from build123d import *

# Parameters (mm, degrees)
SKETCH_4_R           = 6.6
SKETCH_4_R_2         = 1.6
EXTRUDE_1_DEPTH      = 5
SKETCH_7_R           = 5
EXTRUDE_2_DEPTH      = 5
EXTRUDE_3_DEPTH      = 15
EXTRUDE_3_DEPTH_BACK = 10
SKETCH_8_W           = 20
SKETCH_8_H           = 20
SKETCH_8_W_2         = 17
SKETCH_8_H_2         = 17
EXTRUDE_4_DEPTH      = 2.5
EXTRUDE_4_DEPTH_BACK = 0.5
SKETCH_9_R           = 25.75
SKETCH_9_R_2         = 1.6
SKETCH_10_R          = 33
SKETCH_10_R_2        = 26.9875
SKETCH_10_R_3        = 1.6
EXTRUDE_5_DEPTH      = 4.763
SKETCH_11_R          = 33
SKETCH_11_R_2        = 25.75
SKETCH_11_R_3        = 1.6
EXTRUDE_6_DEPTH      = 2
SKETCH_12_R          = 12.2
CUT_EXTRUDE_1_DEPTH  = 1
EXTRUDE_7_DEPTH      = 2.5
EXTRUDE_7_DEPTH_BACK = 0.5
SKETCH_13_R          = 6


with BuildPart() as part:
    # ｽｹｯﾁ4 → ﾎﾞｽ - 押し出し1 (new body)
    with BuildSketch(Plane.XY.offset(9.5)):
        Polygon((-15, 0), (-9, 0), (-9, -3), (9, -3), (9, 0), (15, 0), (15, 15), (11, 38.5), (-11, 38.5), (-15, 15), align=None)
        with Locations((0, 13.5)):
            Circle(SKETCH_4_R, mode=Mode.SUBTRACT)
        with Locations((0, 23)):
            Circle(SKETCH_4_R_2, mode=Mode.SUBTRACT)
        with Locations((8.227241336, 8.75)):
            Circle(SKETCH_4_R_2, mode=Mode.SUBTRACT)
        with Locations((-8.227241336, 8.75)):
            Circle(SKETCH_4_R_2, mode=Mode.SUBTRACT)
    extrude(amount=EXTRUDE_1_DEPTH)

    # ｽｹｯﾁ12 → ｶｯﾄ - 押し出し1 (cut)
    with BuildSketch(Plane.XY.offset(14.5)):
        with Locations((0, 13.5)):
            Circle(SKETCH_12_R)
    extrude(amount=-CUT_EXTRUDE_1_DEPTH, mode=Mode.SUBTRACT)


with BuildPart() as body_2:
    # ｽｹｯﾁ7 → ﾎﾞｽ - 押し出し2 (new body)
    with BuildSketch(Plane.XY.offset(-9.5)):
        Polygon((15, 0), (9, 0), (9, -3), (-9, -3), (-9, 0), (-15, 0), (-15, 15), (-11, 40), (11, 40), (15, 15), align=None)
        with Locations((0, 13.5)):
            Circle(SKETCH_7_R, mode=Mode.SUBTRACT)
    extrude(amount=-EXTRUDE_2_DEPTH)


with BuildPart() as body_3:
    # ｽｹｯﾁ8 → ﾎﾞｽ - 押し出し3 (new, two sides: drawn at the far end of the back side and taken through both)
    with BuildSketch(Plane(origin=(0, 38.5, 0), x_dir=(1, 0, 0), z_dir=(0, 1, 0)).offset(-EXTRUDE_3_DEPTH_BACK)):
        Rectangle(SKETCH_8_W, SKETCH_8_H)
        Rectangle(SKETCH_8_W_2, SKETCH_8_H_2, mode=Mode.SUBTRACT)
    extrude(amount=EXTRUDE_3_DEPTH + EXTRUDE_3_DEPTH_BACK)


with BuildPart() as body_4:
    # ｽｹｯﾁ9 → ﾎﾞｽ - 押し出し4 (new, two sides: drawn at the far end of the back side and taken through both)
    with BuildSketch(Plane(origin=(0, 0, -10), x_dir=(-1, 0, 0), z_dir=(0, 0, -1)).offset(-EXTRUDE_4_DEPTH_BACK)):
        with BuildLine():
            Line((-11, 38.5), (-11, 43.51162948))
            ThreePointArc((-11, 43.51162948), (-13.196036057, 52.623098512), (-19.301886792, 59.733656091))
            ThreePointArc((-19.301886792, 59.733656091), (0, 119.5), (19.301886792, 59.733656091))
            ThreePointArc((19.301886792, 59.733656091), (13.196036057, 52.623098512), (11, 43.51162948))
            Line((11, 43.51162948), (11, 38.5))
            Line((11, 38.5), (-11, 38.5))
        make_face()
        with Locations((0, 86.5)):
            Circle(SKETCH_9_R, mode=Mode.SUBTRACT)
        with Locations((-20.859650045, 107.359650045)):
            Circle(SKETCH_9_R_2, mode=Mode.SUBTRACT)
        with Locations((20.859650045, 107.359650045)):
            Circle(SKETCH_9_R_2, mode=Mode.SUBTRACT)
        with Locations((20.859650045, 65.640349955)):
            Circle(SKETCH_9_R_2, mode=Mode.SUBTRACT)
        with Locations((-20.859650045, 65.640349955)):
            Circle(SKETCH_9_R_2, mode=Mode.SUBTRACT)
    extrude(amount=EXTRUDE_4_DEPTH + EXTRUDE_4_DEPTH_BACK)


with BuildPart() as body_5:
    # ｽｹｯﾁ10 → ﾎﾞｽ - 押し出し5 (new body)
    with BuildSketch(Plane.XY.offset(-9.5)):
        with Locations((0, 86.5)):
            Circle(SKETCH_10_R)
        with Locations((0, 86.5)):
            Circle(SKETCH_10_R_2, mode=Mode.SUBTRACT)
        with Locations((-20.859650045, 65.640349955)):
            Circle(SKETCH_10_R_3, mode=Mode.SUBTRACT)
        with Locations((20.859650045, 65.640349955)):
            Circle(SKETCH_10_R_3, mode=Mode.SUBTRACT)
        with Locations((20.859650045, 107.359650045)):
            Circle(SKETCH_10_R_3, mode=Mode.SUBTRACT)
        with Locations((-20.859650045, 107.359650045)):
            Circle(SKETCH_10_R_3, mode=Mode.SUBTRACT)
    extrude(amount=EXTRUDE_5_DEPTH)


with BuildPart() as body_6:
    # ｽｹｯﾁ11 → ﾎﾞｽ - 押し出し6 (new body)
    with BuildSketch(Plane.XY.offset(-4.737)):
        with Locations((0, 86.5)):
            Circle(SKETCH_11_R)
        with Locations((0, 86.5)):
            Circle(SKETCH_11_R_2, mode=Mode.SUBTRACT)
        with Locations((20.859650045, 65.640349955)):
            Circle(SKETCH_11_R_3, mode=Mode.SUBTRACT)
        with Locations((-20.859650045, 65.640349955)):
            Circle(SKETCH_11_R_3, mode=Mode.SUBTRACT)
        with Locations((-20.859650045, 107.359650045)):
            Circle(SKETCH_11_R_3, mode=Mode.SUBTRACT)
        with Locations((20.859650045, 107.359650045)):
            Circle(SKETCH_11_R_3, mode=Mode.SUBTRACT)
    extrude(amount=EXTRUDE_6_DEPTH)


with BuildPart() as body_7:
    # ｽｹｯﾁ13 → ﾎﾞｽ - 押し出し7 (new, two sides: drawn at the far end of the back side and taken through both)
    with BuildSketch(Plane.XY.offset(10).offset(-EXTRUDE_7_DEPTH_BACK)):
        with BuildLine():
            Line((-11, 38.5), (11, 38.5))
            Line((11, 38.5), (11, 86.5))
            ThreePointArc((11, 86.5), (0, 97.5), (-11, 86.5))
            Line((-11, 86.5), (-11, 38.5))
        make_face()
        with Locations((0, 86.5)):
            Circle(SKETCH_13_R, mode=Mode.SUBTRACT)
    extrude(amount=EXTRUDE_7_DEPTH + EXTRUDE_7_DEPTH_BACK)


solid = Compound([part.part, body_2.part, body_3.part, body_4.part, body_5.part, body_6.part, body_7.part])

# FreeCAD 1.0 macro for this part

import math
import FreeCAD as App
import Part
import Sketcher
from FreeCAD import Vector

doc = App.newDocument("Part")
body = doc.addObject("PartDesign::Body", "Body")

sketch1 = body.newObject("Sketcher::SketchObject", "Sketch")
sketch1.AttachmentSupport = (doc.getObject("XY_Plane"), [""])
sketch1.MapMode = "FlatFace"
sketch1.AttachmentOffset = App.Placement(Vector(0, 0, 9.5), App.Rotation())
sketch1.addGeometry([
    Part.LineSegment(Vector(-15, 0, 0), Vector(-9, 0, 0)),
    Part.LineSegment(Vector(-9, 0, 0), Vector(-9, -3, 0)),
    Part.LineSegment(Vector(-9, -3, 0), Vector(9, -3, 0)),
    Part.LineSegment(Vector(9, -3, 0), Vector(9, 0, 0)),
    Part.LineSegment(Vector(9, 0, 0), Vector(15, 0, 0)),
    Part.LineSegment(Vector(15, 0, 0), Vector(15, 15, 0)),
    Part.LineSegment(Vector(15, 15, 0), Vector(11, 38.5, 0)),
    Part.LineSegment(Vector(11, 38.5, 0), Vector(-11, 38.5, 0)),
    Part.LineSegment(Vector(-11, 38.5, 0), Vector(-15, 15, 0)),
    Part.LineSegment(Vector(-15, 15, 0), Vector(-15, 0, 0)),
    Part.Circle(Vector(-8.227241, 8.75, 0), Vector(0, 0, 1), 1.6),
    Part.Circle(Vector(8.227241, 8.75, 0), Vector(0, 0, 1), 1.6),
    Part.Circle(Vector(0, 13.5, 0), Vector(0, 0, 1), 6.6),
    Part.Circle(Vector(0, 23, 0), Vector(0, 0, 1), 1.6),
], False)
sketch1.addConstraint([
    Sketcher.Constraint("Coincident", 0, 2, 1, 1),
    Sketcher.Constraint("Coincident", 1, 2, 2, 1),
    Sketcher.Constraint("Coincident", 2, 2, 3, 1),
    Sketcher.Constraint("Coincident", 3, 2, 4, 1),
    Sketcher.Constraint("Coincident", 4, 2, 5, 1),
    Sketcher.Constraint("Coincident", 5, 2, 6, 1),
    Sketcher.Constraint("Coincident", 6, 2, 7, 1),
    Sketcher.Constraint("Coincident", 7, 2, 8, 1),
    Sketcher.Constraint("Coincident", 8, 2, 9, 1),
    Sketcher.Constraint("Coincident", 9, 2, 0, 1),
    Sketcher.Constraint("Horizontal", 0),
    Sketcher.Constraint("Vertical", 1),
    Sketcher.Constraint("Horizontal", 2),
    Sketcher.Constraint("Vertical", 3),
    Sketcher.Constraint("Horizontal", 4),
    Sketcher.Constraint("Vertical", 5),
    Sketcher.Constraint("Horizontal", 7),
    Sketcher.Constraint("Vertical", 9),
    Sketcher.Constraint("Equal", 10, 11),
    Sketcher.Constraint("Equal", 11, 13),
    Sketcher.Constraint("Symmetric", 0, 2, 3, 2, -1, 1),
    Sketcher.Constraint("Symmetric", 10, 3, 11, 3, -2),
    Sketcher.Constraint("Symmetric", 5, 2, 8, 2, -2),
    Sketcher.Constraint("PointOnObject", 12, 3, -2),
    Sketcher.Constraint("PointOnObject", 13, 3, -2),
    Sketcher.Constraint("PointOnObject", 0, 2, -1),
    Sketcher.Constraint("Equal", 6, 8),
    Sketcher.Constraint("Diameter", 10, 3.2),
    Sketcher.Constraint("Diameter", 12, 13.2),
    Sketcher.Constraint("DistanceX", 0, 1, 0, 2, 6.0),
    Sketcher.Constraint("DistanceX", 2, 1, 2, 2, 18.0),
    Sketcher.Constraint("DistanceX", 7, 2, 7, 1, 22.0),
    Sketcher.Constraint("DistanceY", 1, 2, 1, 1, 3.0),
    Sketcher.Constraint("DistanceY", 5, 1, 5, 2, 15.0),
    Sketcher.Constraint("DistanceY", -1, 1, 13, 3, 23.0),
    Sketcher.Constraint("DistanceY", 12, 3, 6, 2, 25.0),
    Sketcher.Constraint("DistanceY", -1, 1, 12, 3, 13.5),
    Sketcher.Constraint("DistanceY", -1, 1, 10, 3, 8.75),
    Sketcher.Constraint("DistanceX", 10, 3, -1, 1, 8.227241),
])
pad1 = body.newObject("PartDesign::Pad", "Pad")
pad1.Profile = sketch1
pad1.Length = 5

sketch2 = body.newObject("Sketcher::SketchObject", "Sketch001")
sketch2.AttachmentSupport = (doc.getObject("XY_Plane"), [""])
sketch2.MapMode = "FlatFace"
sketch2.AttachmentOffset = App.Placement(Vector(0, 0, 14.5), App.Rotation())
sketch2.addGeometry(Part.Circle(Vector(0, 13.5, 0), Vector(0, 0, 1), 12.2), False)
sketch2.addConstraint([
    Sketcher.Constraint("PointOnObject", 0, 3, -2),
    Sketcher.Constraint("Diameter", 0, 24.4),
    Sketcher.Constraint("DistanceY", -1, 1, 0, 3, 13.5),
])
pocket1 = body.newObject("PartDesign::Pocket", "Pocket")
pocket1.Profile = sketch2
pocket1.Length = 1
body2 = doc.addObject("PartDesign::Body", "Body001")

sketch3 = body2.newObject("Sketcher::SketchObject", "Sketch002")
sketch3.AttachmentSupport = (doc.getObject("XY_Plane001"), [""])
sketch3.MapMode = "FlatFace"
sketch3.AttachmentOffset = App.Placement(Vector(0, 0, -9.5), App.Rotation())
sketch3.addGeometry([
    Part.LineSegment(Vector(9, 0, 0), Vector(15, 0, 0)),
    Part.LineSegment(Vector(15, 0, 0), Vector(15, 15, 0)),
    Part.LineSegment(Vector(15, 15, 0), Vector(11, 40, 0)),
    Part.LineSegment(Vector(11, 40, 0), Vector(-11, 40, 0)),
    Part.LineSegment(Vector(-11, 40, 0), Vector(-15, 15, 0)),
    Part.LineSegment(Vector(-15, 15, 0), Vector(-15, 0, 0)),
    Part.LineSegment(Vector(-15, 0, 0), Vector(-9, 0, 0)),
    Part.LineSegment(Vector(-9, 0, 0), Vector(-9, -3, 0)),
    Part.LineSegment(Vector(-9, -3, 0), Vector(9, -3, 0)),
    Part.LineSegment(Vector(9, -3, 0), Vector(9, 0, 0)),
    Part.Circle(Vector(0, 13.5, 0), Vector(0, 0, 1), 5),
], False)
sketch3.addConstraint([
    Sketcher.Constraint("Coincident", 0, 2, 1, 1),
    Sketcher.Constraint("Coincident", 1, 2, 2, 1),
    Sketcher.Constraint("Coincident", 2, 2, 3, 1),
    Sketcher.Constraint("Coincident", 3, 2, 4, 1),
    Sketcher.Constraint("Coincident", 4, 2, 5, 1),
    Sketcher.Constraint("Coincident", 5, 2, 6, 1),
    Sketcher.Constraint("Coincident", 6, 2, 7, 1),
    Sketcher.Constraint("Coincident", 7, 2, 8, 1),
    Sketcher.Constraint("Coincident", 8, 2, 9, 1),
    Sketcher.Constraint("Coincident", 9, 2, 0, 1),
    Sketcher.Constraint("Horizontal", 0),
    Sketcher.Constraint("Vertical", 1),
    Sketcher.Constraint("Horizontal", 3),
    Sketcher.Constraint("Vertical", 5),
    Sketcher.Constraint("Horizontal", 6),
    Sketcher.Constraint("Vertical", 7),
    Sketcher.Constraint("Horizontal", 8),
    Sketcher.Constraint("Vertical", 9),
    Sketcher.Constraint("Symmetric", 0, 2, 5, 2, -1, 1),
    Sketcher.Constraint("Symmetric", 6, 2, 9, 2, -2),
    Sketcher.Constraint("PointOnObject", 10, 3, -2),
    Sketcher.Constraint("Horizontal", 1, 2, 4, 2),
    Sketcher.Constraint("Equal", 2, 4),
    Sketcher.Constraint("Diameter", 10, 10.0),
    Sketcher.Constraint("DistanceX", 0, 1, 0, 2, 6.0),
    Sketcher.Constraint("DistanceX", 3, 2, 3, 1, 22.0),
    Sketcher.Constraint("DistanceX", 8, 1, 8, 2, 18.0),
    Sketcher.Constraint("DistanceY", 1, 1, 1, 2, 15.0),
    Sketcher.Constraint("DistanceY", 7, 2, 7, 1, 3.0),
    Sketcher.Constraint("DistanceY", -1, 1, 2, 2, 40.0),
    Sketcher.Constraint("DistanceY", -1, 1, 10, 3, 13.5),
])
pad2 = body2.newObject("PartDesign::Pad", "Pad001")
pad2.Profile = sketch3
pad2.Length = 5
pad2.Reversed = True
body3 = doc.addObject("PartDesign::Body", "Body002")

sketch4 = body3.newObject("Sketcher::SketchObject", "Sketch003")
sketch4.AttachmentSupport = (doc.getObject("XZ_Plane002"), [""])
sketch4.MapMode = "FlatFace"
sketch4.AttachmentOffset = App.Placement(Vector(0, 0, -38.5), App.Rotation())
sketch4.addGeometry([
    Part.LineSegment(Vector(-10, -10, 0), Vector(-10, 10, 0)),
    Part.LineSegment(Vector(-10, 10, 0), Vector(10, 10, 0)),
    Part.LineSegment(Vector(10, 10, 0), Vector(10, -10, 0)),
    Part.LineSegment(Vector(10, -10, 0), Vector(-10, -10, 0)),
    Part.LineSegment(Vector(8.5, 8.5, 0), Vector(-8.5, 8.5, 0)),
    Part.LineSegment(Vector(-8.5, 8.5, 0), Vector(-8.5, -8.5, 0)),
    Part.LineSegment(Vector(-8.5, -8.5, 0), Vector(8.5, -8.5, 0)),
    Part.LineSegment(Vector(8.5, -8.5, 0), Vector(8.5, 8.5, 0)),
], False)
sketch4.addConstraint([
    Sketcher.Constraint("Coincident", 0, 2, 1, 1),
    Sketcher.Constraint("Coincident", 1, 2, 2, 1),
    Sketcher.Constraint("Coincident", 2, 2, 3, 1),
    Sketcher.Constraint("Coincident", 3, 2, 0, 1),
    Sketcher.Constraint("Coincident", 4, 2, 5, 1),
    Sketcher.Constraint("Coincident", 5, 2, 6, 1),
    Sketcher.Constraint("Coincident", 6, 2, 7, 1),
    Sketcher.Constraint("Coincident", 7, 2, 4, 1),
    Sketcher.Constraint("Vertical", 0),
    Sketcher.Constraint("Horizontal", 1),
    Sketcher.Constraint("Vertical", 2),
    Sketcher.Constraint("Horizontal", 3),
    Sketcher.Constraint("Horizontal", 4),
    Sketcher.Constraint("Vertical", 5),
    Sketcher.Constraint("Horizontal", 6),
    Sketcher.Constraint("Vertical", 7),
    Sketcher.Constraint("Symmetric", 0, 2, 2, 2, -1, 1),
    Sketcher.Constraint("Symmetric", 4, 2, 6, 2, -1, 1),
    Sketcher.Constraint("Equal", 3, 0),
    Sketcher.Constraint("Equal", 6, 5),
    Sketcher.Constraint("DistanceX", 1, 1, 1, 2, 20.0),
    Sketcher.Constraint("DistanceX", 4, 2, 4, 1, 17.0),
])
pad3 = body3.newObject("PartDesign::Pad", "Pad002")
pad3.Profile = sketch4
pad3.Type = "TwoLengths"
pad3.Length = 15
pad3.Length2 = 10
pad3.Reversed = True
body4 = doc.addObject("PartDesign::Body", "Body003")

sketch5 = body4.newObject("Sketcher::SketchObject", "Sketch004")
sketch5.AttachmentSupport = (doc.getObject("XY_Plane003"), [""])
sketch5.MapMode = "FlatFace"
sketch5.AttachmentOffset = App.Placement(Vector(0, 0, -10), App.Rotation())
sketch5.addGeometry([
    Part.LineSegment(Vector(11, 43.511629, 0), Vector(11, 38.5, 0)),
    Part.LineSegment(Vector(11, 38.5, 0), Vector(-11, 38.5, 0)),
    Part.LineSegment(Vector(-11, 38.5, 0), Vector(-11, 43.511629, 0)),
    Part.ArcOfCircle(Part.Circle(Vector(-31, 43.511629, 0), Vector(0, 0, 1), 20), math.radians(0), math.radians(54.203674)),
    Part.ArcOfCircle(Part.Circle(Vector(0, 86.5, 0), Vector(0, 0, 1), 33), math.radians(-54.203674), math.radians(234.203674)),
    Part.ArcOfCircle(Part.Circle(Vector(31, 43.511629, 0), Vector(0, 0, 1), 20), math.radians(125.796326), math.radians(180)),
    Part.Circle(Vector(-20.85965, 65.64035, 0), Vector(0, 0, 1), 1.6),
    Part.Circle(Vector(0, 86.5, 0), Vector(0, 0, 1), 25.75),
    Part.Circle(Vector(20.85965, 65.64035, 0), Vector(0, 0, 1), 1.6),
    Part.Circle(Vector(-20.85965, 107.35965, 0), Vector(0, 0, 1), 1.6),
    Part.Circle(Vector(20.85965, 107.35965, 0), Vector(0, 0, 1), 1.6),
], False)
sketch5.addConstraint([
    Sketcher.Constraint("Coincident", 0, 2, 1, 1),
    Sketcher.Constraint("Coincident", 1, 2, 2, 1),
    Sketcher.Constraint("Tangent", 2, 2, 3, 1),
    Sketcher.Constraint("Tangent", 3, 2, 4, 2),
    Sketcher.Constraint("Tangent", 4, 1, 5, 1),
    Sketcher.Constraint("Tangent", 5, 2, 0, 1),
    Sketcher.Constraint("Vertical", 0),
    Sketcher.Constraint("Horizontal", 1),
    Sketcher.Constraint("Vertical", 2),
    Sketcher.Constraint("Coincident", 7, 3, 4, 3),
    Sketcher.Constraint("Equal", 3, 5),
    Sketcher.Constraint("Equal", 6, 8),
    Sketcher.Constraint("Equal", 8, 9),
    Sketcher.Constraint("Equal", 9, 10),
    Sketcher.Constraint("Symmetric", 3, 3, 5, 3, -2),
    Sketcher.Constraint("Symmetric", 6, 3, 8, 3, -2),
    Sketcher.Constraint("Symmetric", 9, 3, 10, 3, -2),
    Sketcher.Constraint("Vertical", 6, 3, 9, 3),
    Sketcher.Constraint("Radius", 3, 20.0),
    Sketcher.Constraint("Radius", 4, 33.0),
    Sketcher.Constraint("Diameter", 6, 3.2),
    Sketcher.Constraint("Diameter", 7, 51.5),
    Sketcher.Constraint("DistanceX", 1, 2, 1, 1, 22.0),
    Sketcher.Constraint("DistanceY", 0, 2, 4, 3, 48.0),
    Sketcher.Constraint("DistanceY", -1, 1, 4, 3, 86.5),
    Sketcher.Constraint("DistanceX", 6, 3, 8, 3, 41.7193),
    Sketcher.Constraint("DistanceY", 6, 3, 9, 3, 41.7193),
    Sketcher.Constraint("DistanceY", -1, 1, 6, 3, 65.64035),
])
pad4 = body4.newObject("PartDesign::Pad", "Pad003")
pad4.Profile = sketch5
pad4.Type = "TwoLengths"
pad4.Length = 2.5
pad4.Length2 = 0.5
pad4.Reversed = True
body5 = doc.addObject("PartDesign::Body", "Body004")

sketch6 = body5.newObject("Sketcher::SketchObject", "Sketch005")
sketch6.AttachmentSupport = (doc.getObject("XY_Plane004"), [""])
sketch6.MapMode = "FlatFace"
sketch6.AttachmentOffset = App.Placement(Vector(0, 0, -9.5), App.Rotation())
sketch6.addGeometry([
    Part.Circle(Vector(0, 86.5, 0), Vector(0, 0, 1), 33),
    Part.Circle(Vector(-20.85965, 65.64035, 0), Vector(0, 0, 1), 1.6),
    Part.Circle(Vector(20.85965, 65.64035, 0), Vector(0, 0, 1), 1.6),
    Part.Circle(Vector(-20.85965, 107.35965, 0), Vector(0, 0, 1), 1.6),
    Part.Circle(Vector(0, 86.5, 0), Vector(0, 0, 1), 26.9875),
    Part.Circle(Vector(20.85965, 107.35965, 0), Vector(0, 0, 1), 1.6),
], False)
sketch6.addConstraint([
    Sketcher.Constraint("Coincident", 4, 3, 0, 3),
    Sketcher.Constraint("Equal", 1, 2),
    Sketcher.Constraint("Equal", 2, 3),
    Sketcher.Constraint("Equal", 3, 5),
    Sketcher.Constraint("Symmetric", 1, 3, 2, 3, -2),
    Sketcher.Constraint("Symmetric", 3, 3, 5, 3, -2),
    Sketcher.Constraint("PointOnObject", 0, 3, -2),
    Sketcher.Constraint("Vertical", 1, 3, 3, 3),
    Sketcher.Constraint("Diameter", 0, 66.0),
    Sketcher.Constraint("Diameter", 1, 3.2),
    Sketcher.Constraint("Diameter", 4, 53.975),
    Sketcher.Constraint("DistanceY", -1, 1, 0, 3, 86.5),
    Sketcher.Constraint("DistanceX", 1, 3, 2, 3, 41.7193),
    Sketcher.Constraint("DistanceY", 1, 3, 3, 3, 41.7193),
    Sketcher.Constraint("DistanceY", -1, 1, 1, 3, 65.64035),
])
pad5 = body5.newObject("PartDesign::Pad", "Pad004")
pad5.Profile = sketch6
pad5.Length = 4.763
body6 = doc.addObject("PartDesign::Body", "Body005")

sketch7 = body6.newObject("Sketcher::SketchObject", "Sketch006")
sketch7.AttachmentSupport = (doc.getObject("XY_Plane005"), [""])
sketch7.MapMode = "FlatFace"
sketch7.AttachmentOffset = App.Placement(Vector(0, 0, -4.737), App.Rotation())
sketch7.addGeometry([
    Part.Circle(Vector(0, 86.5, 0), Vector(0, 0, 1), 33),
    Part.Circle(Vector(-20.85965, 65.64035, 0), Vector(0, 0, 1), 1.6),
    Part.Circle(Vector(0, 86.5, 0), Vector(0, 0, 1), 25.75),
    Part.Circle(Vector(20.85965, 65.64035, 0), Vector(0, 0, 1), 1.6),
    Part.Circle(Vector(-20.85965, 107.35965, 0), Vector(0, 0, 1), 1.6),
    Part.Circle(Vector(20.85965, 107.35965, 0), Vector(0, 0, 1), 1.6),
], False)
sketch7.addConstraint([
    Sketcher.Constraint("Coincident", 2, 3, 0, 3),
    Sketcher.Constraint("Equal", 1, 3),
    Sketcher.Constraint("Equal", 3, 4),
    Sketcher.Constraint("Equal", 4, 5),
    Sketcher.Constraint("Symmetric", 1, 3, 3, 3, -2),
    Sketcher.Constraint("Symmetric", 4, 3, 5, 3, -2),
    Sketcher.Constraint("PointOnObject", 0, 3, -2),
    Sketcher.Constraint("Vertical", 1, 3, 4, 3),
    Sketcher.Constraint("Diameter", 0, 66.0),
    Sketcher.Constraint("Diameter", 1, 3.2),
    Sketcher.Constraint("Diameter", 2, 51.5),
    Sketcher.Constraint("DistanceY", -1, 1, 0, 3, 86.5),
    Sketcher.Constraint("DistanceX", 1, 3, 3, 3, 41.7193),
    Sketcher.Constraint("DistanceY", 1, 3, 4, 3, 41.7193),
    Sketcher.Constraint("DistanceY", -1, 1, 1, 3, 65.64035),
])
pad6 = body6.newObject("PartDesign::Pad", "Pad005")
pad6.Profile = sketch7
pad6.Length = 2
body7 = doc.addObject("PartDesign::Body", "Body006")

sketch8 = body7.newObject("Sketcher::SketchObject", "Sketch007")
sketch8.AttachmentSupport = (doc.getObject("XY_Plane006"), [""])
sketch8.MapMode = "FlatFace"
sketch8.AttachmentOffset = App.Placement(Vector(0, 0, 10), App.Rotation())
sketch8.addGeometry([
    Part.LineSegment(Vector(-11, 38.5, 0), Vector(11, 38.5, 0)),
    Part.LineSegment(Vector(11, 38.5, 0), Vector(11, 86.5, 0)),
    Part.ArcOfCircle(Part.Circle(Vector(0, 86.5, 0), Vector(0, 0, 1), 11), math.radians(0), math.radians(180)),
    Part.LineSegment(Vector(-11, 86.5, 0), Vector(-11, 38.5, 0)),
    Part.Circle(Vector(0, 86.5, 0), Vector(0, 0, 1), 6),
], False)
sketch8.addConstraint([
    Sketcher.Constraint("Coincident", 0, 2, 1, 1),
    Sketcher.Constraint("Tangent", 1, 2, 2, 1),
    Sketcher.Constraint("Tangent", 2, 2, 3, 1),
    Sketcher.Constraint("Coincident", 3, 2, 0, 1),
    Sketcher.Constraint("Horizontal", 0),
    Sketcher.Constraint("Vertical", 1),
    Sketcher.Constraint("Vertical", 3),
    Sketcher.Constraint("Coincident", 4, 3, 2, 3),
    Sketcher.Constraint("PointOnObject", 2, 3, -2),
    Sketcher.Constraint("Diameter", 4, 12.0),
    Sketcher.Constraint("Radius", 2, 11.0),
    Sketcher.Constraint("DistanceY", 1, 1, 1, 2, 48.0),
    Sketcher.Constraint("DistanceY", -1, 1, 2, 3, 86.5),
])
pad7 = body7.newObject("PartDesign::Pad", "Pad006")
pad7.Profile = sketch8
pad7.Type = "TwoLengths"
pad7.Length = 2.5
pad7.Length2 = 0.5

doc.recompute()
